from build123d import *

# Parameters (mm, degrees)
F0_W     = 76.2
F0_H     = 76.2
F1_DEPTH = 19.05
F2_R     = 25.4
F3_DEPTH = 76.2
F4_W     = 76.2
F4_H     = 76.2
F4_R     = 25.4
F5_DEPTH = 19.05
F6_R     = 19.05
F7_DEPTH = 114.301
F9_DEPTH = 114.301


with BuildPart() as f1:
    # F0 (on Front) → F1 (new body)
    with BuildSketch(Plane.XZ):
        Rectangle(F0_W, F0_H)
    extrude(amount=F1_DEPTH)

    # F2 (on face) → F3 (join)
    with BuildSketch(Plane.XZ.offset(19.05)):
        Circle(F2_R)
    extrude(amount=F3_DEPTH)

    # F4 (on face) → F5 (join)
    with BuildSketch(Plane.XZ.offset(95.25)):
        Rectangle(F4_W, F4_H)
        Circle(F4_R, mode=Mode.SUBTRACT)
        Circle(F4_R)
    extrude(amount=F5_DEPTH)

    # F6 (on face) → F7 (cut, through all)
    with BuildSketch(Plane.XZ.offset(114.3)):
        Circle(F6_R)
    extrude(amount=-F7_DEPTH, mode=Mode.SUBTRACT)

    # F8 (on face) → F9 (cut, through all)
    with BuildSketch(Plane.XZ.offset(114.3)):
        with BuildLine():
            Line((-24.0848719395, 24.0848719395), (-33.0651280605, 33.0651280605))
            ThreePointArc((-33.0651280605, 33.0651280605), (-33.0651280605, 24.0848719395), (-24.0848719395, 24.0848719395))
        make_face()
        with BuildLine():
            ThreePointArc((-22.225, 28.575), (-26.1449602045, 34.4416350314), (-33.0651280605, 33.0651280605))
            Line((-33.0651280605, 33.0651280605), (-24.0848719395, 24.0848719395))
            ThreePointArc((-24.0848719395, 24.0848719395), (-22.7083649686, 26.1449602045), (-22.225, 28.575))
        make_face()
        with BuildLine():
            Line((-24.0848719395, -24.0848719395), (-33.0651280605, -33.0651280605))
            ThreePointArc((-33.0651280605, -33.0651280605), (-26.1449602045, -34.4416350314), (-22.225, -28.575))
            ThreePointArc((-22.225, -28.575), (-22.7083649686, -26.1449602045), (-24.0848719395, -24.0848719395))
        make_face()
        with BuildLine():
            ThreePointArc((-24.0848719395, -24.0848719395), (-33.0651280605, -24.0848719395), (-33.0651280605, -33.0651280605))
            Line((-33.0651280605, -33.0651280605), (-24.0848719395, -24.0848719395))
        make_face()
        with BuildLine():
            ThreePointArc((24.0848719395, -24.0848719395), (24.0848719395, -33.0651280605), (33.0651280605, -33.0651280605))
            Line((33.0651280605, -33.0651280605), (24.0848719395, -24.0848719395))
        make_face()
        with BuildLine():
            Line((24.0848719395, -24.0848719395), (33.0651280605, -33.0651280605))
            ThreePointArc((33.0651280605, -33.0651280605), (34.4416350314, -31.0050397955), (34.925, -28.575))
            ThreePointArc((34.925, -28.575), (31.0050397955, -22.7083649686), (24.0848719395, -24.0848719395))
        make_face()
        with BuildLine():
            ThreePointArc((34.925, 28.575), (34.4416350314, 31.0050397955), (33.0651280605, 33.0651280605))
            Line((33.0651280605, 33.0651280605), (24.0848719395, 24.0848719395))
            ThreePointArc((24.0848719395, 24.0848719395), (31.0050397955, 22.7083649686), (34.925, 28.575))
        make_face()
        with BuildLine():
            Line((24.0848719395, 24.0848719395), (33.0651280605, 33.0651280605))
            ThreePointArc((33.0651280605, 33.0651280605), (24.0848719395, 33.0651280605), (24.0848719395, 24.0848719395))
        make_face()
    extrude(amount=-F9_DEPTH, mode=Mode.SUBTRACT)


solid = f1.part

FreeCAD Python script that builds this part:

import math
import FreeCAD as App
import Part
import Sketcher

V = App.Vector
Q = App.Units.Quantity

doc = App.newDocument("Part")
body = doc.addObject("PartDesign::Body", "Body")

sketch1 = body.newObject("Sketcher::SketchObject", "Sketch")
sketch1.AttachmentSupport = (doc.getObject("XZ_Plane"), [""])
sketch1.MapMode = "FlatFace"
sketch1.addGeometry(Part.LineSegment(V(-38, 38, 0), V(-38, -38, 0)), False)
sketch1.addGeometry(Part.LineSegment(V(-38, -38, 0), V(38, -38, 0)), False)
sketch1.addGeometry(Part.LineSegment(V(38, -38, 0), V(38, 38, 0)), False)
sketch1.addGeometry(Part.LineSegment(V(38, 38, 0), V(-38, 38, 0)), False)
sketch1.addConstraint(Sketcher.Constraint("Coincident", 0, 2, 1, 1))
sketch1.addConstraint(Sketcher.Constraint("Coincident", 1, 2, 2, 1))
sketch1.addConstraint(Sketcher.Constraint("Coincident", 2, 2, 3, 1))
sketch1.addConstraint(Sketcher.Constraint("Coincident", 3, 2, 0, 1))
sketch1.addConstraint(Sketcher.Constraint("Vertical", 0))
sketch1.addConstraint(Sketcher.Constraint("Horizontal", 1))
sketch1.addConstraint(Sketcher.Constraint("Vertical", 2))
sketch1.addConstraint(Sketcher.Constraint("Horizontal", 3))
sketch1.addConstraint(Sketcher.Constraint("Symmetric", 0, 2, 2, 2, -1, 1))
sketch1.addConstraint(Sketcher.Constraint("Equal", 3, 0))
sketch1.addConstraint(Sketcher.Constraint("DistanceX", 1, 1, 1, 2, Q("3 in")))
pad1 = body.newObject("PartDesign::Pad", "Pad")
pad1.Profile = sketch1
pad1.Length = Q("0.75 in")

sketch2 = body.newObject("Sketcher::SketchObject", "Sketch001")
sketch2.AttachmentSupport = (doc.getObject("XZ_Plane"), [""])
sketch2.MapMode = "FlatFace"
sketch2.AttachmentOffset = App.Placement(V(0, 0, 0.75 * 25.4), App.Rotation())
sketch2.addGeometry(Part.Circle(V(0, 0, 0), V(0, 0, 1), 25), False)
sketch2.addConstraint(Sketcher.Constraint("Coincident", 0, 3, -1, 1))
sketch2.addConstraint(Sketcher.Constraint("Diameter", 0, Q("2 in")))
pad2 = body.newObject("PartDesign::Pad", "Pad001")
pad2.Profile = sketch2
pad2.Length = Q("3 in")

sketch3 = body.newObject("Sketcher::SketchObject", "Sketch002")
sketch3.AttachmentSupport = (doc.getObject("XZ_Plane"), [""])
sketch3.MapMode = "FlatFace"
sketch3.AttachmentOffset = App.Placement(V(0, 0, 3.75 * 25.4), App.Rotation())
sketch3.addGeometry(Part.LineSegment(V(-38, 38, 0), V(-38, -38, 0)), False)
sketch3.addGeometry(Part.LineSegment(V(-38, -38, 0), V(38, -38, 0)), False)
sketch3.addGeometry(Part.LineSegment(V(38, -38, 0), V(38, 38, 0)), False)
sketch3.addGeometry(Part.LineSegment(V(38, 38, 0), V(-38, 38, 0)), False)
sketch3.addConstraint(Sketcher.Constraint("Coincident", 0, 2, 1, 1))
sketch3.addConstraint(Sketcher.Constraint("Coincident", 1, 2, 2, 1))
sketch3.addConstraint(Sketcher.Constraint("Coincident", 2, 2, 3, 1))
sketch3.addConstraint(Sketcher.Constraint("Coincident", 3, 2, 0, 1))
sketch3.addConstraint(Sketcher.Constraint("Vertical", 0))
sketch3.addConstraint(Sketcher.Constraint("Horizontal", 1))
sketch3.addConstraint(Sketcher.Constraint("Vertical", 2))
sketch3.addConstraint(Sketcher.Constraint("Horizontal", 3))
sketch3.addConstraint(Sketcher.Constraint("Symmetric", 0, 2, 2, 2, -1, 1))
sketch3.addConstraint(Sketcher.Constraint("Equal", 3, 0))
sketch3.addConstraint(Sketcher.Constraint("DistanceX", 1, 1, 1, 2, Q("3 in")))
pad3 = body.newObject("PartDesign::Pad", "Pad002")
pad3.Profile = sketch3
pad3.Length = Q("0.75 in")

sketch4 = body.newObject("Sketcher::SketchObject", "Sketch003")
sketch4.AttachmentSupport = (doc.getObject("XZ_Plane"), [""])
sketch4.MapMode = "FlatFace"
sketch4.AttachmentOffset = App.Placement(V(0, 0, 4.5 * 25.4), App.Rotation())
sketch4.addGeometry(Part.Circle(V(0, 0, 0), V(0, 0, 1), 19), False)
sketch4.addConstraint(Sketcher.Constraint("Coincident", 0, 3, -1, 1))
sketch4.addConstraint(Sketcher.Constraint("Diameter", 0, Q("1.5 in")))
pocket1 = body.newObject("PartDesign::Pocket", "Pocket")
pocket1.Profile = sketch4
pocket1.Type = "ThroughAll"

sketch5 = body.newObject("Sketcher::SketchObject", "Sketch004")
sketch5.AttachmentSupport = (doc.getObject("XZ_Plane"), [""])
sketch5.MapMode = "FlatFace"
sketch5.AttachmentOffset = App.Placement(V(0, 0, 4.5 * 25.4), App.Rotation())
sketch5.addGeometry(Part.ArcOfCircle(Part.Circle(V(-28.6, 28.6, 0), V(0, 0, 1), 6.3), math.radians(135), math.radians(315)), False)
sketch5.addGeometry(Part.ArcOfCircle(Part.Circle(V(-28.6, 28.6, 0), V(0, 0, 1), 6.3), math.radians(-45), math.radians(0)), False)
sketch5.addGeometry(Part.ArcOfCircle(Part.Circle(V(-28.6, 28.6, 0), V(0, 0, 1), 6.3), math.radians(0), math.radians(135)), False)
sketch5.addGeometry(Part.ArcOfCircle(Part.Circle(V(-28.6, -28.6, 0), V(0, 0, 1), 6.3), math.radians(-135), math.radians(0)), False)
sketch5.addGeometry(Part.ArcOfCircle(Part.Circle(V(-28.6, -28.6, 0), V(0, 0, 1), 6.3), math.radians(0), math.radians(45)), False)
sketch5.addGeometry(Part.ArcOfCircle(Part.Circle(V(-28.6, -28.6, 0), V(0, 0, 1), 6.3), math.radians(45), math.radians(225)), False)
sketch5.addGeometry(Part.ArcOfCircle(Part.Circle(V(28.6, -28.6, 0), V(0, 0, 1), 6.3), math.radians(135), math.radians(315)), False)
sketch5.addGeometry(Part.ArcOfCircle(Part.Circle(V(28.6, -28.6, 0), V(0, 0, 1), 6.3), math.radians(-45), math.radians(0)), False)
sketch5.addGeometry(Part.ArcOfCircle(Part.Circle(V(28.6, -28.6, 0), V(0, 0, 1), 6.3), math.radians(0), math.radians(135)), False)
sketch5.addGeometry(Part.ArcOfCircle(Part.Circle(V(28.6, 28.6, 0), V(0, 0, 1), 6.3), math.radians(0), math.radians(45)), False)
sketch5.addGeometry(Part.ArcOfCircle(Part.Circle(V(28.6, 28.6, 0), V(0, 0, 1), 6.3), math.radians(45), math.radians(225)), False)
sketch5.addGeometry(Part.ArcOfCircle(Part.Circle(V(28.6, 28.6, 0), V(0, 0, 1), 6.3), math.radians(-135), math.radians(0)), False)
sketch5.addConstraint(Sketcher.Constraint("Tangent", 0, 2, 1, 1))
sketch5.addConstraint(Sketcher.Constraint("Tangent", 1, 2, 2, 1))
sketch5.addConstraint(Sketcher.Constraint("Tangent", 2, 2, 0, 1))
sketch5.addConstraint(Sketcher.Constraint("Tangent", 3, 2, 4, 1))
sketch5.addConstraint(Sketcher.Constraint("Tangent", 4, 2, 5, 1))
sketch5.addConstraint(Sketcher.Constraint("Tangent", 5, 2, 3, 1))
sketch5.addConstraint(Sketcher.Constraint("Tangent", 6, 2, 7, 1))
sketch5.addConstraint(Sketcher.Constraint("Tangent", 7, 2, 8, 1))
sketch5.addConstraint(Sketcher.Constraint("Tangent", 8, 2, 6, 1))
sketch5.addConstraint(Sketcher.Constraint("Tangent", 9, 2, 10, 1))
sketch5.addConstraint(Sketcher.Constraint("Tangent", 10, 2, 11, 1))
sketch5.addConstraint(Sketcher.Constraint("Tangent", 11, 2, 9, 1))
sketch5.addConstraint(Sketcher.Constraint("Equal", 2, 3))
sketch5.addConstraint(Sketcher.Constraint("Equal", 5, 6))
sketch5.addConstraint(Sketcher.Constraint("Equal", 8, 9))
sketch5.addConstraint(Sketcher.Constraint("Symmetric", 0, 3, 6, 3, -1, 1))
sketch5.addConstraint(Sketcher.Constraint("Symmetric", 3, 3, 9, 3, -1, 1))
sketch5.addConstraint(Sketcher.Constraint("Symmetric", 3, 3, 6, 3, -2))
sketch5.addConstraint(Sketcher.Constraint("Horizontal", 11, 3, 1, 2))
sketch5.addConstraint(Sketcher.Constraint("Horizontal", 8, 3, 3, 2))
sketch5.addConstraint(Sketcher.Constraint("Horizontal", 5, 2, 6, 2))
sketch5.addConstraint(Sketcher.Constraint("Horizontal", 3, 2, 7, 2))
sketch5.addConstraint(Sketcher.Constraint("Horizontal", 4, 2, 8, 2))
sketch5.addConstraint(Sketcher.Constraint("Horizontal", 2, 2, 9, 2))
sketch5.addConstraint(Sketcher.Constraint("Horizontal", 0, 2, 10, 2))
sketch5.addConstraint(Sketcher.Constraint("Horizontal", 1, 2, 11, 2))
sketch5.addConstraint(Sketcher.Constraint("Vertical", 0, 2, 4, 2))
sketch5.addConstraint(Sketcher.Constraint("Vertical", 2, 2, 5, 2))
sketch5.addConstraint(Sketcher.Constraint("Radius", 0, Q("0.25 in")))
sketch5.addConstraint(Sketcher.Constraint("DistanceX", 1, 2, 9, 3, Q("2 in")))
sketch5.addConstraint(Sketcher.Constraint("DistanceY", 3, 3, 0, 3, Q("2.25 in")))
sketch5.addConstraint(Sketcher.Constraint("DistanceX", 4, 2, 6, 2, Q("2.25 in")))
sketch5.addConstraint(Sketcher.Constraint("DistanceX", 0, 2, -1, 1, 24.084872))
pocket2 = body.newObject("PartDesign::Pocket", "Pocket001")
pocket2.Profile = sketch5
pocket2.Type = "ThroughAll"

doc.recompute()
